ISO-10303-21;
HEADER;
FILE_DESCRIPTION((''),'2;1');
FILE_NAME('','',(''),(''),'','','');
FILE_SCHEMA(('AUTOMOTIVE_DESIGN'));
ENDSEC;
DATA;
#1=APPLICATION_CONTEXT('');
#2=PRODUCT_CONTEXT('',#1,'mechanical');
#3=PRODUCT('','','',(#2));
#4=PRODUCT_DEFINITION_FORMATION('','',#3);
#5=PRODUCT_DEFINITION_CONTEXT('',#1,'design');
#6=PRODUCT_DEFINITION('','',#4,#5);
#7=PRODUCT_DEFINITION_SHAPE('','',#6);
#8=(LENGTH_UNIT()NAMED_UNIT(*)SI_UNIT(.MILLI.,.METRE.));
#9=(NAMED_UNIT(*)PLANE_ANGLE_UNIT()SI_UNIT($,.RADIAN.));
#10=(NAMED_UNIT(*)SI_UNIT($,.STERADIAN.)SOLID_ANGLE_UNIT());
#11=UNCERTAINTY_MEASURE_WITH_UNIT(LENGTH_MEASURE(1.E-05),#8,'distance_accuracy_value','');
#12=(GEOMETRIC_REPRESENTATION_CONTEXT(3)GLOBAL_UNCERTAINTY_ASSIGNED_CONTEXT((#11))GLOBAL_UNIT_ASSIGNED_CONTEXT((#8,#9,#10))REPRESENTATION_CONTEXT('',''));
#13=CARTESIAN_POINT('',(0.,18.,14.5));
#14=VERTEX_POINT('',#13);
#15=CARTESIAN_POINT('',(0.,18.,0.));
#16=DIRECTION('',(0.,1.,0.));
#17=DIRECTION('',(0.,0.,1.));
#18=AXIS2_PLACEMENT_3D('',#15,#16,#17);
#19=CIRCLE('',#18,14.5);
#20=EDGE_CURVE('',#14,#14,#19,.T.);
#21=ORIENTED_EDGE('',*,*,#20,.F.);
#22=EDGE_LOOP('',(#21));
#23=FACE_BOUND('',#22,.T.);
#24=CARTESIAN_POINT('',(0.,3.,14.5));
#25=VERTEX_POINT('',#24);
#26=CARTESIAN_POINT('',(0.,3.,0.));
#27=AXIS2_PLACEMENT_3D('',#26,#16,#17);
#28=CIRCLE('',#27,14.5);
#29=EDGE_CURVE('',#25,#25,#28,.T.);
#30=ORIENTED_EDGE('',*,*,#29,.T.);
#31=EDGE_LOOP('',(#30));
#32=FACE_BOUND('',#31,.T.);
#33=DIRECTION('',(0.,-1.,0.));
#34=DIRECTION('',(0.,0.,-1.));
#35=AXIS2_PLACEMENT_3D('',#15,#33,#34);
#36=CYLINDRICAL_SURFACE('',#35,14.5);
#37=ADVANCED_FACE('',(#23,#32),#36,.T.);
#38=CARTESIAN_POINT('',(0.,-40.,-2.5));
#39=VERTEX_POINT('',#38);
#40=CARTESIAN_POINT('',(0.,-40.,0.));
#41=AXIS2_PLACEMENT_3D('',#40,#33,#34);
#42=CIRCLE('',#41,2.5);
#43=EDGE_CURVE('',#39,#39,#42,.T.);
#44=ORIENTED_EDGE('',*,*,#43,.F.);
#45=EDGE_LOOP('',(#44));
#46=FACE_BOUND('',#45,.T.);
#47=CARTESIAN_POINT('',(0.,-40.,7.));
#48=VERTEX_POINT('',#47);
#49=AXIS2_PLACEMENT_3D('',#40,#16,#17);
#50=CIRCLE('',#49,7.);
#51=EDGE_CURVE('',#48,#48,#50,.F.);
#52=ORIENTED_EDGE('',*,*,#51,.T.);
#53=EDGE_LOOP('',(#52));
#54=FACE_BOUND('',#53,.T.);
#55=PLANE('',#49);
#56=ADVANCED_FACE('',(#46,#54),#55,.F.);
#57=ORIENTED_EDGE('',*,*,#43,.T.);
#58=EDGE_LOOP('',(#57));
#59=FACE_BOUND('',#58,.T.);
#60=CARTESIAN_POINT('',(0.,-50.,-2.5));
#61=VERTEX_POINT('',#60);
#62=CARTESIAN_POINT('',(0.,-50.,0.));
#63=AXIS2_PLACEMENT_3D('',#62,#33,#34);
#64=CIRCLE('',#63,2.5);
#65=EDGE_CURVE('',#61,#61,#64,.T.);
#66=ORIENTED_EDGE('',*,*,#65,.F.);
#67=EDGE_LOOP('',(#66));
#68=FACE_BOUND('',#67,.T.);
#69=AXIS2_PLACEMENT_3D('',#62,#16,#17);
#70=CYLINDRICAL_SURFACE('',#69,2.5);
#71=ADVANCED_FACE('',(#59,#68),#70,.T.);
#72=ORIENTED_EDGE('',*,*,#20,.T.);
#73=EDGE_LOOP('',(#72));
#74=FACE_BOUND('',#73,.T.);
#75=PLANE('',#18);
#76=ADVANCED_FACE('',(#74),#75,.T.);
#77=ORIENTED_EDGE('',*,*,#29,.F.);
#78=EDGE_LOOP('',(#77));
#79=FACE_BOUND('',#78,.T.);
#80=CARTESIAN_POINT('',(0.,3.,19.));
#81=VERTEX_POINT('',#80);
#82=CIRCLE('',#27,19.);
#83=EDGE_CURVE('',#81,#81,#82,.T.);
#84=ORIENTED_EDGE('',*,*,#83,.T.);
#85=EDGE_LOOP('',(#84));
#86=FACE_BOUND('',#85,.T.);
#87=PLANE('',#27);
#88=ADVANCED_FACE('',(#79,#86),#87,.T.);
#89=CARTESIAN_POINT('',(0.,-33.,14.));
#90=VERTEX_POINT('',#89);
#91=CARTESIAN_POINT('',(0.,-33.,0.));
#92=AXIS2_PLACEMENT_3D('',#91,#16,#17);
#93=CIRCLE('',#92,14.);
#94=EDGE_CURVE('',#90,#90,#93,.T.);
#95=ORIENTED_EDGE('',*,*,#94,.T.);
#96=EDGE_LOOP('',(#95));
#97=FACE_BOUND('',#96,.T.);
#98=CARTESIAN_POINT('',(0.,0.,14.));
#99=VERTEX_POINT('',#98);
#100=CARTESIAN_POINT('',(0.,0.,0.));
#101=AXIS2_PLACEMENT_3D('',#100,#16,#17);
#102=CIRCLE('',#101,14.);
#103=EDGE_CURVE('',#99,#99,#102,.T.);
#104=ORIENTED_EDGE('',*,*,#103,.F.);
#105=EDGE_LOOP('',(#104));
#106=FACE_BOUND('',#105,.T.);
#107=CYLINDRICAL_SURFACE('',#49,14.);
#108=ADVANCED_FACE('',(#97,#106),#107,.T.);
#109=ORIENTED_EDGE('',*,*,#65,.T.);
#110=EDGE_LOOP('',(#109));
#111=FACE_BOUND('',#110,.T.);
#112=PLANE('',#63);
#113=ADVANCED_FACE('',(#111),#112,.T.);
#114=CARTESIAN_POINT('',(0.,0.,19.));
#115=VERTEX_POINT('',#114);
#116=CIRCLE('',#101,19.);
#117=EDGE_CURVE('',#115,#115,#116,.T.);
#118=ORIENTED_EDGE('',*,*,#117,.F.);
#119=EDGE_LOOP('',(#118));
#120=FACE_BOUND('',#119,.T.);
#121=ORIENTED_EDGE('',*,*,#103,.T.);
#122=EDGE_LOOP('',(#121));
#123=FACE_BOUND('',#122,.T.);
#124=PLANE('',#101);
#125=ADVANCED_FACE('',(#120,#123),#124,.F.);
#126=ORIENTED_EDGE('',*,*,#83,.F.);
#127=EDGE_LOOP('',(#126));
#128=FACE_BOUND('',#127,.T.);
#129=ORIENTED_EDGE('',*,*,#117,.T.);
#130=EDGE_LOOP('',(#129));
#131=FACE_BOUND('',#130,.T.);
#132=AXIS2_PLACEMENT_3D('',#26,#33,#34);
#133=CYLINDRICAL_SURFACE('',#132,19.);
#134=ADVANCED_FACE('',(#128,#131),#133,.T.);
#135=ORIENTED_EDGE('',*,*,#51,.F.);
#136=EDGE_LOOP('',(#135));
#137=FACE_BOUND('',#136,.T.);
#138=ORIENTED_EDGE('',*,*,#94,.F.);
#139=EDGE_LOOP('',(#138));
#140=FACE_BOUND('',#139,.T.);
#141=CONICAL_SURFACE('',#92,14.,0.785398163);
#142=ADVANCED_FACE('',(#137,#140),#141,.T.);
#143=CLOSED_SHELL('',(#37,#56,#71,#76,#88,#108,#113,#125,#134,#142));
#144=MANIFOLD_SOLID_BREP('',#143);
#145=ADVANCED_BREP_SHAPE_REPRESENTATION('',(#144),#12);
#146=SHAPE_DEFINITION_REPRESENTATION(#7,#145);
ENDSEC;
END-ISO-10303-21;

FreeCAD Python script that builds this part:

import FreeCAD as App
import Part
import Sketcher
from FreeCAD import Vector


def edges_at(feature, points):
    """Names of the edges that pass closest to the given points."""
    edges = feature.Shape.Edges
    near = lambda p: min(range(len(edges)), key=lambda i: edges[i].distToShape(Part.Vertex(*p))[0])
    return sorted({f"Edge{near(p) + 1}" for p in points})

doc = App.newDocument("Part")
body = doc.addObject("PartDesign::Body", "Body")

# Sketch on XZ plane
sketch1 = doc.addObject("Sketcher::SketchObject", "Sketch")
body.addObject(sketch1)
sketch1.AttachmentSupport = (doc.XZ_Plane, [""])
sketch1.MapMode = "FlatFace"
sketch1.addGeometry(Part.Circle(Vector(0, 0, 0), Vector(0, 0, 1), 14), False)
sketch1.addConstraint(Sketcher.Constraint("Coincident", 0, 3, -1, 1))
sketch1.addConstraint(Sketcher.Constraint("Diameter", 0, 28.0))
pad1 = doc.addObject("PartDesign::Pad", "Pad")
body.addObject(pad1)
pad1.Profile = sketch1
pad1.Length = 40
doc.recompute()

chamfer = doc.addObject("PartDesign::Chamfer", "Chamfer")
body.addObject(chamfer)
chamfer.Base = (pad1, edges_at(pad1, [(-14, -40, 0)]))
chamfer.Size = 7

# Sketch on XZ plane
sketch2 = doc.addObject("Sketcher::SketchObject", "Sketch001")
body.addObject(sketch2)
sketch2.AttachmentSupport = (doc.XZ_Plane, [""])
sketch2.MapMode = "FlatFace"
sketch2.addGeometry(Part.Circle(Vector(0, 0, 0), Vector(0, 0, 1), 19), False)
sketch2.addConstraint(Sketcher.Constraint("Coincident", 0, 3, -1, 1))
sketch2.addConstraint(Sketcher.Constraint("Diameter", 0, 38.0))
pad2 = doc.addObject("PartDesign::Pad", "Pad001")
body.addObject(pad2)
pad2.Profile = sketch2
pad2.Length = 3
pad2.Reversed = True

# Sketch on XZ plane
sketch3 = doc.addObject("Sketcher::SketchObject", "Sketch002")
body.addObject(sketch3)
sketch3.AttachmentSupport = (doc.XZ_Plane, [""])
sketch3.MapMode = "FlatFace"
sketch3.AttachmentOffset = App.Placement(Vector(0, 0, -3), App.Rotation())
sketch3.addGeometry(Part.Circle(Vector(0, 0, 0), Vector(0, 0, 1), 14.5), False)
sketch3.addConstraint(Sketcher.Constraint("Coincident", 0, 3, -1, 1))
sketch3.addConstraint(Sketcher.Constraint("Diameter", 0, 29.0))
pad3 = doc.addObject("PartDesign::Pad", "Pad002")
body.addObject(pad3)
pad3.Profile = sketch3
pad3.Length = 15
pad3.Reversed = True

# Sketch on XZ plane
sketch4 = doc.addObject("Sketcher::SketchObject", "Sketch003")
body.addObject(sketch4)
sketch4.AttachmentSupport = (doc.XZ_Plane, [""])
sketch4.MapMode = "FlatFace"
sketch4.AttachmentOffset = App.Placement(Vector(0, 0, 40), App.Rotation())
sketch4.addGeometry(Part.Circle(Vector(0, 0, 0), Vector(0, 0, 1), 2.5), False)
sketch4.addConstraint(Sketcher.Constraint("Coincident", 0, 3, -1, 1))
sketch4.addConstraint(Sketcher.Constraint("Diameter", 0, 5.0))
pad4 = doc.addObject("PartDesign::Pad", "Pad003")
body.addObject(pad4)
pad4.Profile = sketch4
pad4.Length = 10

doc.recompute()
